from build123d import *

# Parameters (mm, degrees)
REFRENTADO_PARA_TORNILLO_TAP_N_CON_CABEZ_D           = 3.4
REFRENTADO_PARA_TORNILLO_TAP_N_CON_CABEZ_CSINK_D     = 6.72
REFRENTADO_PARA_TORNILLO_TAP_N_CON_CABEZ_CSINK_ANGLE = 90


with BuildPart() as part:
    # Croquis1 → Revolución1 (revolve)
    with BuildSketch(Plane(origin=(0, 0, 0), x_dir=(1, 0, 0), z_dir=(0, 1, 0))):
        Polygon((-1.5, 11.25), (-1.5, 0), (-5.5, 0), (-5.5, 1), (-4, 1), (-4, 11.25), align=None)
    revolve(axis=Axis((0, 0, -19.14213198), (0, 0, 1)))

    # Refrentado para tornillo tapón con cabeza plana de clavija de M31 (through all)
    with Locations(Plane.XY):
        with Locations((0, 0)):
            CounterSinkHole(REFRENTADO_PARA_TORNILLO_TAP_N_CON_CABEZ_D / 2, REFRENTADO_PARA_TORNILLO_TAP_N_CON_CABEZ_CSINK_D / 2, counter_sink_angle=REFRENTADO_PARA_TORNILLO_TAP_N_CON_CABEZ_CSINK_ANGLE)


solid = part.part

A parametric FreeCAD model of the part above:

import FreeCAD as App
import Part
import Sketcher
Q = App.Units.Quantity

doc = App.newDocument("Part")
params = doc.addObject("Spreadsheet::Sheet", "Params")
for row, (alias, value) in enumerate([
    ("sketch1_width", "4 mm"),
    ("sketch1_height", "1 mm"),
    ("sketch1_width2", "2.5 mm"),
    ("sketch1_height2", "11.25 mm"),
    ("revolution_angle", "360 deg"),
    ("sketch2_diameter", "3.4 mm"),
    ("hole_diameter", "3.4 mm"),
    ("hole_csink_diameter", "6.72 mm"),
], start=1):
    params.set(f"A{row}", alias)
    params.set(f"B{row}", "=" + value)
    params.setAlias(f"B{row}", alias)

body = doc.addObject("PartDesign::Body", "Body")

# Sketch on XZ plane
sketch1 = body.newObject("Sketcher::SketchObject", "Sketch")
sketch1.AttachmentSupport = (doc.getObject("XZ_Plane"), [""])
sketch1.MapMode = "FlatFace"
sketch1.addGeometry([
    Part.LineSegment(App.Vector(-1.5, 0, 0), App.Vector(-1.5, -11.2, 0)),  # 0
    Part.LineSegment(App.Vector(-1.5, -11.2, 0), App.Vector(-4, -11.2, 0)),  # 1
    Part.LineSegment(App.Vector(-4, -11.2, 0), App.Vector(-4, -1, 0)),  # 2
    Part.LineSegment(App.Vector(-4, -1, 0), App.Vector(-5.5, -1, 0)),  # 3
    Part.LineSegment(App.Vector(-5.5, -1, 0), App.Vector(-5.5, 0, 0)),  # 4
    Part.LineSegment(App.Vector(-5.5, 0, 0), App.Vector(-1.5, 0, 0)),  # 5
], False)
sketch1.addConstraint([
    Sketcher.Constraint("Coincident", 0, 2, 1, 1),
    Sketcher.Constraint("Coincident", 1, 2, 2, 1),
    Sketcher.Constraint("Coincident", 2, 2, 3, 1),
    Sketcher.Constraint("Coincident", 3, 2, 4, 1),
    Sketcher.Constraint("Coincident", 4, 2, 5, 1),
    Sketcher.Constraint("Coincident", 5, 2, 0, 1),
    Sketcher.Constraint("Vertical", 0),
    Sketcher.Constraint("Horizontal", 1),
    Sketcher.Constraint("Vertical", 2),
    Sketcher.Constraint("Horizontal", 3),
    Sketcher.Constraint("Vertical", 4),
    Sketcher.Constraint("Horizontal", 5),
    Sketcher.Constraint("PointOnObject", 4, 2, -1),
    Sketcher.Constraint("DistanceX", 5, 1, 5, 2, Q("4 mm")),
    Sketcher.Constraint("DistanceY", 4, 1, 4, 2, Q("1 mm")),
    Sketcher.Constraint("DistanceX", 1, 2, 1, 1, Q("2.5 mm")),
    Sketcher.Constraint("DistanceX", 1, 2, -1, 1, Q("4 mm")),
    Sketcher.Constraint("DistanceY", 0, 2, 0, 1, Q("11.25 mm")),
])
sketch1.setExpression("Constraints[13]", "Params.sketch1_width")
sketch1.setExpression("Constraints[14]", "Params.sketch1_height")
sketch1.setExpression("Constraints[15]", "Params.sketch1_width2")
sketch1.setExpression("Constraints[17]", "Params.sketch1_height2")
revolution = body.newObject("PartDesign::Revolution", "Revolution")
revolution.Profile = sketch1
revolution.ReferenceAxis = (sketch1, ["V_Axis"])
revolution.setExpression("Angle", "Params.revolution_angle")

# Sketch on XY plane
sketch2 = body.newObject("Sketcher::SketchObject", "Sketch001")
sketch2.AttachmentSupport = (doc.getObject("XY_Plane"), [""])
sketch2.MapMode = "FlatFace"
sketch2.addGeometry(Part.Circle(App.Vector(0, 0, 0), App.Vector(0, 0, 1), 1.7), False)
sketch2.addConstraint([
    Sketcher.Constraint("Coincident", 0, 3, -1, 1),
    Sketcher.Constraint("Diameter", 0, Q("3.4 mm")),
])
sketch2.setExpression("Constraints[1]", "Params.sketch2_diameter")
doc.recompute()
hole = body.newObject("PartDesign::Hole", "Hole")
hole.Profile = sketch2
hole.ThreadType = "None"
hole.setExpression("Diameter", "Params.hole_diameter")
hole.DepthType = "ThroughAll"
hole.HoleCutType = "Countersink"
hole.setExpression("HoleCutDiameter", "Params.hole_csink_diameter")
hole.HoleCutCountersinkAngle = 90

doc.recompute()
